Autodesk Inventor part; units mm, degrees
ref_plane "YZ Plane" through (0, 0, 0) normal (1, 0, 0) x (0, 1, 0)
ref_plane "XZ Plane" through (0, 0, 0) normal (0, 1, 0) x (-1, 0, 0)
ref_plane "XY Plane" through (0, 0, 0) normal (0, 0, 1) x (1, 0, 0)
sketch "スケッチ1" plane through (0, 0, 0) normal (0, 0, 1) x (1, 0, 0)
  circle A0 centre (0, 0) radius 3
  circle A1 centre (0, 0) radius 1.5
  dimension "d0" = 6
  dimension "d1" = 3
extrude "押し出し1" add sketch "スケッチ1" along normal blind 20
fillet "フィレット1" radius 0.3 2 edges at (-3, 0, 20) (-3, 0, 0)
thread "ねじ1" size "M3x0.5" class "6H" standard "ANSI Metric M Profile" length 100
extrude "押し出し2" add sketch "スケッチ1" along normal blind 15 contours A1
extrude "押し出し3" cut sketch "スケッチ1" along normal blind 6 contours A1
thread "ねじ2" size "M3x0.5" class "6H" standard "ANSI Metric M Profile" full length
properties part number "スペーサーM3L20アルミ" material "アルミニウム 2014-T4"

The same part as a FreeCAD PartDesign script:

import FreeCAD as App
import Part
import Sketcher


def edges_at(feature, points):
    """Names of the edges that pass closest to the given points."""
    edges = feature.Shape.Edges
    near = lambda p: min(range(len(edges)), key=lambda i: edges[i].distToShape(Part.Vertex(*p))[0])
    return sorted({f"Edge{near(p) + 1}" for p in points})

doc = App.newDocument("Part")
params = doc.addObject("Spreadsheet::Sheet", "Params")
for row, (alias, value) in enumerate([
    ("sketch1_diameter", "6 mm"),
    ("sketch1_diameter2", "3 mm"),
    ("pad1_length", "20 mm"),
    ("fillet_radius", "0.3 mm"),
    ("sketch2_diameter", "3 mm"),
    ("pad2_length", "15 mm"),
    ("sketch3_diameter", "3 mm"),
    ("pocket1_length", "6 mm"),
], start=1):
    params.set(f"A{row}", alias)
    params.set(f"B{row}", "=" + value)
    params.setAlias(f"B{row}", alias)

body = doc.addObject("PartDesign::Body", "Body")

# Sketch on XY plane
sketch1 = doc.addObject("Sketcher::SketchObject", "Sketch")
body.addObject(sketch1)
sketch1.AttachmentSupport = (doc.XY_Plane, [""])
sketch1.MapMode = "FlatFace"
sketch1.addGeometry([
    Part.Circle(App.Vector(0, 0, 0), App.Vector(0, 0, 1), 3),
    Part.Circle(App.Vector(0, 0, 0), App.Vector(0, 0, 1), 1.5),
], False)
sketch1.addConstraint([
    Sketcher.Constraint("Coincident", 0, 3, -1, 1),
    Sketcher.Constraint("Coincident", 1, 3, -1, 1),
    Sketcher.Constraint("Diameter", 0, 6.0),
    Sketcher.Constraint("Diameter", 1, 3.0),
])
sketch1.setExpression("Constraints[2]", "Params.sketch1_diameter")
sketch1.setExpression("Constraints[3]", "Params.sketch1_diameter2")
pad1 = doc.addObject("PartDesign::Pad", "Pad")
body.addObject(pad1)
pad1.Profile = sketch1
pad1.setExpression("Length", "Params.pad1_length")
doc.recompute()

fillet = doc.addObject("PartDesign::Fillet", "Fillet")
body.addObject(fillet)
fillet.Base = (pad1, edges_at(pad1, [(-3, 0, 20), (-3, 0, 0)]))
fillet.setExpression("Radius", "Params.fillet_radius")

# Sketch on XY plane
sketch2 = doc.addObject("Sketcher::SketchObject", "Sketch001")
body.addObject(sketch2)
sketch2.AttachmentSupport = (doc.XY_Plane, [""])
sketch2.MapMode = "FlatFace"
sketch2.addGeometry(Part.Circle(App.Vector(0, 0, 0), App.Vector(0, 0, 1), 1.5), False)
sketch2.addConstraint([
    Sketcher.Constraint("Coincident", 0, 3, -1, 1),
    Sketcher.Constraint("Diameter", 0, 3.0),
])
sketch2.setExpression("Constraints[1]", "Params.sketch2_diameter")
pad2 = doc.addObject("PartDesign::Pad", "Pad001")
body.addObject(pad2)
pad2.Profile = sketch2
pad2.setExpression("Length", "Params.pad2_length")

# Sketch on XY plane
sketch3 = doc.addObject("Sketcher::SketchObject", "Sketch002")
body.addObject(sketch3)
sketch3.AttachmentSupport = (doc.XY_Plane, [""])
sketch3.MapMode = "FlatFace"
sketch3.addGeometry(Part.Circle(App.Vector(0, 0, 0), App.Vector(0, 0, 1), 1.5), False)
sketch3.addConstraint([
    Sketcher.Constraint("Coincident", 0, 3, -1, 1),
    Sketcher.Constraint("Diameter", 0, 3.0),
])
sketch3.setExpression("Constraints[1]", "Params.sketch3_diameter")
pocket1 = doc.addObject("PartDesign::Pocket", "Pocket")
body.addObject(pocket1)
pocket1.Profile = sketch3
pocket1.setExpression("Length", "Params.pocket1_length")
pocket1.Reversed = True

doc.recompute()
